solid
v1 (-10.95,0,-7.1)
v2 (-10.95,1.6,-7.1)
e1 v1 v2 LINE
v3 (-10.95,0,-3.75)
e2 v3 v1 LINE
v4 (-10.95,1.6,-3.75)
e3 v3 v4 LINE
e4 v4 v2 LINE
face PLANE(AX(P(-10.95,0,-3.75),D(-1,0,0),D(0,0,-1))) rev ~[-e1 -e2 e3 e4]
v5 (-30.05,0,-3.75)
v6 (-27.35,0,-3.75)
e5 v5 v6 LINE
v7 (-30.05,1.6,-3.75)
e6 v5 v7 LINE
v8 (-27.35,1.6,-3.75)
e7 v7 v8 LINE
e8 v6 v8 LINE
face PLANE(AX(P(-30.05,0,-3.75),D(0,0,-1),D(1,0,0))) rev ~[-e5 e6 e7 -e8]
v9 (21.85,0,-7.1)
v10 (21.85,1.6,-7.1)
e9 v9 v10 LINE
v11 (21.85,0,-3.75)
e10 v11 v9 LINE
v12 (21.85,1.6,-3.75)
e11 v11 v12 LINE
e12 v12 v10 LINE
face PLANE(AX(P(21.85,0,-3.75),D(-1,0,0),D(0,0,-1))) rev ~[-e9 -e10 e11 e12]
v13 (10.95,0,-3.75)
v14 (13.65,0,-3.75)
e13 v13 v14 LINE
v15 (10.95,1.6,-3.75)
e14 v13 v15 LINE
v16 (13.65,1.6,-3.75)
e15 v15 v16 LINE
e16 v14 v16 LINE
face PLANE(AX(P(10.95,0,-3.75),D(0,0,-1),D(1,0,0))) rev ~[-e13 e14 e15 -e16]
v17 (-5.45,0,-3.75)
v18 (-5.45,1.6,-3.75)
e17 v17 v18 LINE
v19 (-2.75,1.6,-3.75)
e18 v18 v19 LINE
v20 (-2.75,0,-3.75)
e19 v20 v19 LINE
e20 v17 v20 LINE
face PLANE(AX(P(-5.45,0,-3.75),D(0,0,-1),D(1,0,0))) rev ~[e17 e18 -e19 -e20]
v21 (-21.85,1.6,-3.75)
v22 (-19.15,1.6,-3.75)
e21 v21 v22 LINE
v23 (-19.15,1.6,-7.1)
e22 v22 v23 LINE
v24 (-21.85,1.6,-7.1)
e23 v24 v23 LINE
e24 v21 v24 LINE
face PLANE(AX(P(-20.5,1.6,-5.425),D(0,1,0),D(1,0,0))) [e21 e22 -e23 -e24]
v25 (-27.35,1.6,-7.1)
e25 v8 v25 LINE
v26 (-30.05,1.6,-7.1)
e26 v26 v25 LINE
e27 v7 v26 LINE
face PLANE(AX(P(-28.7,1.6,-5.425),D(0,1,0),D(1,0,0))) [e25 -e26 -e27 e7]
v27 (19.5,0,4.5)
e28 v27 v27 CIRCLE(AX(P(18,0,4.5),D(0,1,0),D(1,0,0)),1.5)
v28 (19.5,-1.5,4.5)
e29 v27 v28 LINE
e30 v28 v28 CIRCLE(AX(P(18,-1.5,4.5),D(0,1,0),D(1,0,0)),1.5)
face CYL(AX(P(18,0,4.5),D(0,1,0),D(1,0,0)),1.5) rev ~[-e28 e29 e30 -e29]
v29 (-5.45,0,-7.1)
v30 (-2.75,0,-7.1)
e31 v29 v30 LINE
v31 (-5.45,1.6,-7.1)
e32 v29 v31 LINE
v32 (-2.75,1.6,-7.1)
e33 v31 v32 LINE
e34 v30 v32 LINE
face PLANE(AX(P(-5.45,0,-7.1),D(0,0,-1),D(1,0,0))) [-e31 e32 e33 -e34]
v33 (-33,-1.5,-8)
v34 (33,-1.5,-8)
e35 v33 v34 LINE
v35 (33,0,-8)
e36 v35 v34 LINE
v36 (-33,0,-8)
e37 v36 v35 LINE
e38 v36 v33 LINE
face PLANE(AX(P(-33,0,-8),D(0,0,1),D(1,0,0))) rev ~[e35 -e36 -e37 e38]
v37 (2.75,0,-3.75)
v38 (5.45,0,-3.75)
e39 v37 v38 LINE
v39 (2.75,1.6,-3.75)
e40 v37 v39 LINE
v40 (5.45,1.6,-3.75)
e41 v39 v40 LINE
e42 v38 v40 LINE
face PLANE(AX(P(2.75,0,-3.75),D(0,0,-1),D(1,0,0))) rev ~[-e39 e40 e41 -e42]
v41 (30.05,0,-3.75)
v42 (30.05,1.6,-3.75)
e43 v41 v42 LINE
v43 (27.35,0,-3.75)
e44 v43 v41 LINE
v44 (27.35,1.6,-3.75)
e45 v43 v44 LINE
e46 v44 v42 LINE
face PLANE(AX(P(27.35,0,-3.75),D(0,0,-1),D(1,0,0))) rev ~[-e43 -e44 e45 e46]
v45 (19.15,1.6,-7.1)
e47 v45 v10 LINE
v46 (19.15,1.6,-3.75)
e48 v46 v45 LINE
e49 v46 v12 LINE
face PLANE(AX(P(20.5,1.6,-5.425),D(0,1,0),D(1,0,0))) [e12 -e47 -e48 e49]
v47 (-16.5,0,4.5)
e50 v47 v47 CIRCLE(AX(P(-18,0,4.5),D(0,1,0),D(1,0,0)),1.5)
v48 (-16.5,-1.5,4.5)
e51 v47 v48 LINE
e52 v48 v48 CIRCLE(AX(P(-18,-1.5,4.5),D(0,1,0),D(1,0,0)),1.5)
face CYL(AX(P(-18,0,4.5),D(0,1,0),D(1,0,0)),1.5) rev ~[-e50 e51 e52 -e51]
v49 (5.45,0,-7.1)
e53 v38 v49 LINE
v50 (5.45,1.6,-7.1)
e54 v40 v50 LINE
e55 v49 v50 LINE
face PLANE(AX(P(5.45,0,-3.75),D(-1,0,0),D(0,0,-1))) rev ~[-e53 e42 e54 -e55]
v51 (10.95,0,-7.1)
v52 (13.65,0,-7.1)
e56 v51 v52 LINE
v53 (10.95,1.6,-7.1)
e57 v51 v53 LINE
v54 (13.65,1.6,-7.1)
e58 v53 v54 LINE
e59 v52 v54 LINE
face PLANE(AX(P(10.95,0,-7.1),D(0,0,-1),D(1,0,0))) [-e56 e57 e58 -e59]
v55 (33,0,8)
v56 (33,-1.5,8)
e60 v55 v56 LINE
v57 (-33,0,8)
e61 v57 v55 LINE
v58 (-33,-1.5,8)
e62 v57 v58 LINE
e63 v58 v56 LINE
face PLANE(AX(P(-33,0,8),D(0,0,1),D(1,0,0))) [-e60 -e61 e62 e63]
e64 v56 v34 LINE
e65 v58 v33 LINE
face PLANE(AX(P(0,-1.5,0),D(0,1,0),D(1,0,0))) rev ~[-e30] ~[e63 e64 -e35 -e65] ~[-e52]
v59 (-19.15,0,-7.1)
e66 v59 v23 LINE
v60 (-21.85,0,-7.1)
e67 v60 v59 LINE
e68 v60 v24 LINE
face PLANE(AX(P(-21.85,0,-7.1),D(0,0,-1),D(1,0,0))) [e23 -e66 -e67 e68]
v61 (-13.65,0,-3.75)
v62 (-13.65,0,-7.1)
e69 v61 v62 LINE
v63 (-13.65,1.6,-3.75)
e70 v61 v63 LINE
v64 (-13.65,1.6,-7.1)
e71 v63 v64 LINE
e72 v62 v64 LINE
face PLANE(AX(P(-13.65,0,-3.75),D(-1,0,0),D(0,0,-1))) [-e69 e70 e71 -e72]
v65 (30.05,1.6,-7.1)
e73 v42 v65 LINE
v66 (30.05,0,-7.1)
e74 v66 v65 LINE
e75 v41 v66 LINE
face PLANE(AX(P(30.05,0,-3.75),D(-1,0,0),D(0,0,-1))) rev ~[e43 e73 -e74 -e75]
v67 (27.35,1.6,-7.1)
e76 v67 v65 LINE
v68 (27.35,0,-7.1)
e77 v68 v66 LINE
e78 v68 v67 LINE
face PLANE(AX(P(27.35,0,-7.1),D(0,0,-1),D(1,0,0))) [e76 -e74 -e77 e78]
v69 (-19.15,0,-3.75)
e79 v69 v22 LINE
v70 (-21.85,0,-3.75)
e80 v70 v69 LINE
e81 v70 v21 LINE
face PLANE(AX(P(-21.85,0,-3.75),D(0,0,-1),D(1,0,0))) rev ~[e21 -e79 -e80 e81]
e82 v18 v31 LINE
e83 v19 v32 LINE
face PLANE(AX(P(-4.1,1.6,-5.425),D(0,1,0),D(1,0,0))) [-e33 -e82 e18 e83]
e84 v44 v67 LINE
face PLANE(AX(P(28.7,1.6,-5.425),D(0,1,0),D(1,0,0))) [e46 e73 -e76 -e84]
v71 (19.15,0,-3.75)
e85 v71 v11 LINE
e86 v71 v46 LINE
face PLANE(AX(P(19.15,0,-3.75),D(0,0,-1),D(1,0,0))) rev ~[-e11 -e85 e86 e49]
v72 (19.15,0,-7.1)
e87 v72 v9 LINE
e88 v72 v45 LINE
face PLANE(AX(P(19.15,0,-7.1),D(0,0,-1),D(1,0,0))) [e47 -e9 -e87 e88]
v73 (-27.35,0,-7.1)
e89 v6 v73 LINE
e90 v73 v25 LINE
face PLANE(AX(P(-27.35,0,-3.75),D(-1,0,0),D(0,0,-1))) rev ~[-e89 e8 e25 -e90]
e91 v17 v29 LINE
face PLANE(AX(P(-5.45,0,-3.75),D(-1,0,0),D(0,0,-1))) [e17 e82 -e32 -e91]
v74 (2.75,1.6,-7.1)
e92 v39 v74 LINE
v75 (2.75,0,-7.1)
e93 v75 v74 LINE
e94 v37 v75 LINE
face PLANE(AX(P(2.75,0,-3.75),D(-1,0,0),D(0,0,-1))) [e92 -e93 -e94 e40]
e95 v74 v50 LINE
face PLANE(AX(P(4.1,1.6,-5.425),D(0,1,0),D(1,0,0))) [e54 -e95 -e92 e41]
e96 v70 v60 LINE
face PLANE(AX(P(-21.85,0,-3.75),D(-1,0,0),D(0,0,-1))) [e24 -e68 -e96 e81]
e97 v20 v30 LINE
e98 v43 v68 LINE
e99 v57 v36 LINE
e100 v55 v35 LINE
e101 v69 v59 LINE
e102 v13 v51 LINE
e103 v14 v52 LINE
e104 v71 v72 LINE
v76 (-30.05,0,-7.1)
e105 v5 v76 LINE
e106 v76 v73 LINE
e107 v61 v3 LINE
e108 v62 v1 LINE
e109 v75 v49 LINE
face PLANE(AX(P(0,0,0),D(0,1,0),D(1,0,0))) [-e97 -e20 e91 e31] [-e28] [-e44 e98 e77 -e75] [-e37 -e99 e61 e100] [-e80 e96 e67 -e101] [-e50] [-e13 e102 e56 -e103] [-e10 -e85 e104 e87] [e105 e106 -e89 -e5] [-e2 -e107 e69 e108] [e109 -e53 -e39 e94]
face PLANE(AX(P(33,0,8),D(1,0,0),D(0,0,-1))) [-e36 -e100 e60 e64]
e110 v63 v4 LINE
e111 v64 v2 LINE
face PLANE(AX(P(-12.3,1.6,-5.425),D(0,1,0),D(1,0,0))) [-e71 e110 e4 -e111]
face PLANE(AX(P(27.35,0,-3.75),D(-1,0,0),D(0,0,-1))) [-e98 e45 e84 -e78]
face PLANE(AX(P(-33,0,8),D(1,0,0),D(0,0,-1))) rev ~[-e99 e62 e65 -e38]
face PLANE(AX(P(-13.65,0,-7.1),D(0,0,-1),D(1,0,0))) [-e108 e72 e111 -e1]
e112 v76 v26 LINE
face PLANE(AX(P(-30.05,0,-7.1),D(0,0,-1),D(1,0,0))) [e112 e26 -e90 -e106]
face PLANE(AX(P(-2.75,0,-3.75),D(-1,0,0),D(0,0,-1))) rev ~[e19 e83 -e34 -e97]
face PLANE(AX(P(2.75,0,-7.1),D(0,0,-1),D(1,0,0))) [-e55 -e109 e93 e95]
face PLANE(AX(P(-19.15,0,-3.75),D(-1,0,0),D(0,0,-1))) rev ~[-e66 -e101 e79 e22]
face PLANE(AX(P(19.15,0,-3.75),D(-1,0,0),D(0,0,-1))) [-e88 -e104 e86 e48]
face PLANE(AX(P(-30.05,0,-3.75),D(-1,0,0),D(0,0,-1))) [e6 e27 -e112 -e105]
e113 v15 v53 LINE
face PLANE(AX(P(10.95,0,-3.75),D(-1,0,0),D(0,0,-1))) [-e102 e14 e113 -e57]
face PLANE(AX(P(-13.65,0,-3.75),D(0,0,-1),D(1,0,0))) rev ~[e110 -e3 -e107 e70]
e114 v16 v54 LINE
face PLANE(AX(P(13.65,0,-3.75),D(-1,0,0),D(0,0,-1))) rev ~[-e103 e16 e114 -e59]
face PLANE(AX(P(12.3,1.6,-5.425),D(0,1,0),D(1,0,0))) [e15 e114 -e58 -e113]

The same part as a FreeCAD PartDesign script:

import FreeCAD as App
import Part
import Sketcher

V = App.Vector
Q = App.Units.Quantity

doc = App.newDocument("Part")
body = doc.addObject("PartDesign::Body", "Body")

# Sketch on XZ plane
sketch1 = body.newObject("Sketcher::SketchObject", "Sketch")
sketch1.AttachmentSupport = (doc.getObject("XZ_Plane"), [""])
sketch1.MapMode = "FlatFace"
sketch1.addGeometry(Part.LineSegment(V(-33, -8, 0), V(-33, 8, 0)), False)
sketch1.addGeometry(Part.LineSegment(V(-33, 8, 0), V(33, 8, 0)), False)
sketch1.addGeometry(Part.LineSegment(V(33, 8, 0), V(33, -8, 0)), False)
sketch1.addGeometry(Part.LineSegment(V(33, -8, 0), V(-33, -8, 0)), False)
sketch1.addGeometry(Part.Circle(V(-18, 4.5, 0), V(0, 0, 1), 1.5), False)
sketch1.addGeometry(Part.Circle(V(18, 4.5, 0), V(0, 0, 1), 1.5), False)
sketch1.addConstraint(Sketcher.Constraint("Coincident", 0, 2, 1, 1))
sketch1.addConstraint(Sketcher.Constraint("Coincident", 1, 2, 2, 1))
sketch1.addConstraint(Sketcher.Constraint("Coincident", 2, 2, 3, 1))
sketch1.addConstraint(Sketcher.Constraint("Coincident", 3, 2, 0, 1))
sketch1.addConstraint(Sketcher.Constraint("Vertical", 0))
sketch1.addConstraint(Sketcher.Constraint("Horizontal", 1))
sketch1.addConstraint(Sketcher.Constraint("Vertical", 2))
sketch1.addConstraint(Sketcher.Constraint("Horizontal", 3))
sketch1.addConstraint(Sketcher.Constraint("Equal", 4, 5))
sketch1.addConstraint(Sketcher.Constraint("Symmetric", 0, 2, 2, 2, -1, 1))
sketch1.addConstraint(Sketcher.Constraint("Symmetric", 4, 3, 5, 3, -2))
sketch1.addConstraint(Sketcher.Constraint("Diameter", 4, Q("3 mm")))
sketch1.addConstraint(Sketcher.Constraint("DistanceX", 1, 1, 1, 2, Q("66 mm")))
sketch1.addConstraint(Sketcher.Constraint("DistanceY", 0, 1, 0, 2, Q("16 mm")))
sketch1.addConstraint(Sketcher.Constraint("DistanceX", 4, 3, -1, 1, Q("18 mm")))
sketch1.addConstraint(Sketcher.Constraint("DistanceY", -1, 1, 4, 3, Q("4.5 mm")))
pad1 = body.newObject("PartDesign::Pad", "Pad")
pad1.Profile = sketch1
pad1.Length = 1.5

# Sketch on XZ plane
sketch2 = body.newObject("Sketcher::SketchObject", "Sketch001")
sketch2.AttachmentSupport = (doc.getObject("XZ_Plane"), [""])
sketch2.MapMode = "FlatFace"
sketch2.addGeometry(Part.LineSegment(V(-5.45, -7.1, 0), V(-5.45, -3.75, 0)), False)
sketch2.addGeometry(Part.LineSegment(V(-5.45, -3.75, 0), V(-2.75, -3.75, 0)), False)
sketch2.addGeometry(Part.LineSegment(V(-2.75, -3.75, 0), V(-2.75, -7.1, 0)), False)
sketch2.addGeometry(Part.LineSegment(V(-2.75, -7.1, 0), V(-5.45, -7.1, 0)), False)
sketch2.addGeometry(Part.LineSegment(V(2.75, -7.1, 0), V(2.75, -3.75, 0)), False)
sketch2.addGeometry(Part.LineSegment(V(2.75, -3.75, 0), V(5.45, -3.75, 0)), False)
sketch2.addGeometry(Part.LineSegment(V(5.45, -3.75, 0), V(5.45, -7.1, 0)), False)
sketch2.addGeometry(Part.LineSegment(V(5.45, -7.1, 0), V(2.75, -7.1, 0)), False)
sketch2.addGeometry(Part.LineSegment(V(10.95, -7.1, 0), V(10.95, -3.75, 0)), False)
sketch2.addGeometry(Part.LineSegment(V(10.95, -3.75, 0), V(13.65, -3.75, 0)), False)
sketch2.addGeometry(Part.LineSegment(V(13.65, -3.75, 0), V(13.65, -7.1, 0)), False)
sketch2.addGeometry(Part.LineSegment(V(13.65, -7.1, 0), V(10.95, -7.1, 0)), False)
sketch2.addGeometry(Part.LineSegment(V(19.15, -7.1, 0), V(19.15, -3.75, 0)), False)
sketch2.addGeometry(Part.LineSegment(V(19.15, -3.75, 0), V(21.85, -3.75, 0)), False)
sketch2.addGeometry(Part.LineSegment(V(21.85, -3.75, 0), V(21.85, -7.1, 0)), False)
sketch2.addGeometry(Part.LineSegment(V(21.85, -7.1, 0), V(19.15, -7.1, 0)), False)
sketch2.addGeometry(Part.LineSegment(V(27.35, -7.1, 0), V(27.35, -3.75, 0)), False)
sketch2.addGeometry(Part.LineSegment(V(27.35, -3.75, 0), V(30.05, -3.75, 0)), False)
sketch2.addGeometry(Part.LineSegment(V(30.05, -3.75, 0), V(30.05, -7.1, 0)), False)
sketch2.addGeometry(Part.LineSegment(V(30.05, -7.1, 0), V(27.35, -7.1, 0)), False)
sketch2.addGeometry(Part.LineSegment(V(-13.65, -7.1, 0), V(-13.65, -3.75, 0)), False)
sketch2.addGeometry(Part.LineSegment(V(-13.65, -3.75, 0), V(-10.95, -3.75, 0)), False)
sketch2.addGeometry(Part.LineSegment(V(-10.95, -3.75, 0), V(-10.95, -7.1, 0)), False)
sketch2.addGeometry(Part.LineSegment(V(-10.95, -7.1, 0), V(-13.65, -7.1, 0)), False)
sketch2.addGeometry(Part.LineSegment(V(-30.05, -7.1, 0), V(-30.05, -3.75, 0)), False)
sketch2.addGeometry(Part.LineSegment(V(-30.05, -3.75, 0), V(-27.35, -3.75, 0)), False)
sketch2.addGeometry(Part.LineSegment(V(-27.35, -3.75, 0), V(-27.35, -7.1, 0)), False)
sketch2.addGeometry(Part.LineSegment(V(-27.35, -7.1, 0), V(-30.05, -7.1, 0)), False)
sketch2.addGeometry(Part.LineSegment(V(-21.85, -7.1, 0), V(-21.85, -3.75, 0)), False)
sketch2.addGeometry(Part.LineSegment(V(-21.85, -3.75, 0), V(-19.15, -3.75, 0)), False)
sketch2.addGeometry(Part.LineSegment(V(-19.15, -3.75, 0), V(-19.15, -7.1, 0)), False)
sketch2.addGeometry(Part.LineSegment(V(-19.15, -7.1, 0), V(-21.85, -7.1, 0)), False)
sketch2.addConstraint(Sketcher.Constraint("Coincident", 0, 2, 1, 1))
sketch2.addConstraint(Sketcher.Constraint("Coincident", 1, 2, 2, 1))
sketch2.addConstraint(Sketcher.Constraint("Coincident", 2, 2, 3, 1))
sketch2.addConstraint(Sketcher.Constraint("Coincident", 3, 2, 0, 1))
sketch2.addConstraint(Sketcher.Constraint("Coincident", 4, 2, 5, 1))
sketch2.addConstraint(Sketcher.Constraint("Coincident", 5, 2, 6, 1))
sketch2.addConstraint(Sketcher.Constraint("Coincident", 6, 2, 7, 1))
sketch2.addConstraint(Sketcher.Constraint("Coincident", 7, 2, 4, 1))
sketch2.addConstraint(Sketcher.Constraint("Coincident", 8, 2, 9, 1))
sketch2.addConstraint(Sketcher.Constraint("Coincident", 9, 2, 10, 1))
sketch2.addConstraint(Sketcher.Constraint("Coincident", 10, 2, 11, 1))
sketch2.addConstraint(Sketcher.Constraint("Coincident", 11, 2, 8, 1))
sketch2.addConstraint(Sketcher.Constraint("Coincident", 12, 2, 13, 1))
sketch2.addConstraint(Sketcher.Constraint("Coincident", 13, 2, 14, 1))
sketch2.addConstraint(Sketcher.Constraint("Coincident", 14, 2, 15, 1))
sketch2.addConstraint(Sketcher.Constraint("Coincident", 15, 2, 12, 1))
sketch2.addConstraint(Sketcher.Constraint("Coincident", 16, 2, 17, 1))
sketch2.addConstraint(Sketcher.Constraint("Coincident", 17, 2, 18, 1))
sketch2.addConstraint(Sketcher.Constraint("Coincident", 18, 2, 19, 1))
sketch2.addConstraint(Sketcher.Constraint("Coincident", 19, 2, 16, 1))
sketch2.addConstraint(Sketcher.Constraint("Coincident", 20, 2, 21, 1))
sketch2.addConstraint(Sketcher.Constraint("Coincident", 21, 2, 22, 1))
sketch2.addConstraint(Sketcher.Constraint("Coincident", 22, 2, 23, 1))
sketch2.addConstraint(Sketcher.Constraint("Coincident", 23, 2, 20, 1))
sketch2.addConstraint(Sketcher.Constraint("Coincident", 24, 2, 25, 1))
sketch2.addConstraint(Sketcher.Constraint("Coincident", 25, 2, 26, 1))
sketch2.addConstraint(Sketcher.Constraint("Coincident", 26, 2, 27, 1))
sketch2.addConstraint(Sketcher.Constraint("Coincident", 27, 2, 24, 1))
sketch2.addConstraint(Sketcher.Constraint("Coincident", 28, 2, 29, 1))
sketch2.addConstraint(Sketcher.Constraint("Coincident", 29, 2, 30, 1))
sketch2.addConstraint(Sketcher.Constraint("Coincident", 30, 2, 31, 1))
sketch2.addConstraint(Sketcher.Constraint("Coincident", 31, 2, 28, 1))
sketch2.addConstraint(Sketcher.Constraint("Vertical", 0))
sketch2.addConstraint(Sketcher.Constraint("Horizontal", 1))
sketch2.addConstraint(Sketcher.Constraint("Vertical", 2))
sketch2.addConstraint(Sketcher.Constraint("Horizontal", 3))
sketch2.addConstraint(Sketcher.Constraint("Vertical", 4))
sketch2.addConstraint(Sketcher.Constraint("Horizontal", 5))
sketch2.addConstraint(Sketcher.Constraint("Vertical", 6))
sketch2.addConstraint(Sketcher.Constraint("Horizontal", 7))
sketch2.addConstraint(Sketcher.Constraint("Vertical", 8))
sketch2.addConstraint(Sketcher.Constraint("Horizontal", 9))
sketch2.addConstraint(Sketcher.Constraint("Vertical", 10))
sketch2.addConstraint(Sketcher.Constraint("Horizontal", 11))
sketch2.addConstraint(Sketcher.Constraint("Vertical", 12))
sketch2.addConstraint(Sketcher.Constraint("Horizontal", 13))
sketch2.addConstraint(Sketcher.Constraint("Vertical", 14))
sketch2.addConstraint(Sketcher.Constraint("Horizontal", 15))
sketch2.addConstraint(Sketcher.Constraint("Vertical", 16))
sketch2.addConstraint(Sketcher.Constraint("Horizontal", 17))
sketch2.addConstraint(Sketcher.Constraint("Vertical", 18))
sketch2.addConstraint(Sketcher.Constraint("Horizontal", 19))
sketch2.addConstraint(Sketcher.Constraint("Vertical", 20))
sketch2.addConstraint(Sketcher.Constraint("Horizontal", 21))
sketch2.addConstraint(Sketcher.Constraint("Vertical", 22))
sketch2.addConstraint(Sketcher.Constraint("Horizontal", 23))
sketch2.addConstraint(Sketcher.Constraint("Vertical", 24))
sketch2.addConstraint(Sketcher.Constraint("Horizontal", 25))
sketch2.addConstraint(Sketcher.Constraint("Vertical", 26))
sketch2.addConstraint(Sketcher.Constraint("Horizontal", 27))
sketch2.addConstraint(Sketcher.Constraint("Vertical", 28))
sketch2.addConstraint(Sketcher.Constraint("Horizontal", 29))
sketch2.addConstraint(Sketcher.Constraint("Vertical", 30))
sketch2.addConstraint(Sketcher.Constraint("Horizontal", 31))
sketch2.addConstraint(Sketcher.Constraint("Symmetric", 1, 2, 4, 2, -2))
sketch2.addConstraint(Sketcher.Constraint("Symmetric", 3, 2, 6, 2, -2))
sketch2.addConstraint(Sketcher.Constraint("Symmetric", 9, 2, 20, 2, -2))
sketch2.addConstraint(Sketcher.Constraint("Symmetric", 11, 2, 22, 2, -2))
sketch2.addConstraint(Sketcher.Constraint("Symmetric", 17, 2, 24, 2, -2))
sketch2.addConstraint(Sketcher.Constraint("Symmetric", 19, 2, 26, 2, -2))
sketch2.addConstraint(Sketcher.Constraint("Symmetric", 13, 2, 28, 2, -2))
sketch2.addConstraint(Sketcher.Constraint("Symmetric", 15, 2, 30, 2, -2))
sketch2.addConstraint(Sketcher.Constraint("Horizontal", 5, 2, 8, 2))
sketch2.addConstraint(Sketcher.Constraint("Horizontal", 7, 2, 10, 2))
sketch2.addConstraint(Sketcher.Constraint("Horizontal", 9, 2, 12, 2))
sketch2.addConstraint(Sketcher.Constraint("Horizontal", 11, 2, 14, 2))
sketch2.addConstraint(Sketcher.Constraint("Horizontal", 13, 2, 16, 2))
sketch2.addConstraint(Sketcher.Constraint("Horizontal", 15, 2, 18, 2))
sketch2.addConstraint(Sketcher.Constraint("Equal", 7, 9))
sketch2.addConstraint(Sketcher.Constraint("Equal", 11, 13))
sketch2.addConstraint(Sketcher.Constraint("Equal", 15, 17))
sketch2.addConstraint(Sketcher.Constraint("DistanceX", 1, 1, 1, 2, Q("2.7 mm")))
sketch2.addConstraint(Sketcher.Constraint("DistanceY", 0, 1, 0, 2, Q("3.35 mm")))
sketch2.addConstraint(Sketcher.Constraint("DistanceY", 2, 2, -1, 1, Q("7.1 mm")))
sketch2.addConstraint(Sketcher.Constraint("DistanceX", 1, 2, 4, 2, Q("5.5 mm")))
sketch2.addConstraint(Sketcher.Constraint("DistanceX", 5, 2, 8, 2, Q("5.5 mm")))
sketch2.addConstraint(Sketcher.Constraint("DistanceX", 9, 2, 12, 2, Q("5.5 mm")))
sketch2.addConstraint(Sketcher.Constraint("DistanceX", 13, 2, 16, 2, Q("5.5 mm")))
pad2 = body.newObject("PartDesign::Pad", "Pad001")
pad2.Profile = sketch2
pad2.Length = 1.6
pad2.Reversed = True

doc.recompute()
